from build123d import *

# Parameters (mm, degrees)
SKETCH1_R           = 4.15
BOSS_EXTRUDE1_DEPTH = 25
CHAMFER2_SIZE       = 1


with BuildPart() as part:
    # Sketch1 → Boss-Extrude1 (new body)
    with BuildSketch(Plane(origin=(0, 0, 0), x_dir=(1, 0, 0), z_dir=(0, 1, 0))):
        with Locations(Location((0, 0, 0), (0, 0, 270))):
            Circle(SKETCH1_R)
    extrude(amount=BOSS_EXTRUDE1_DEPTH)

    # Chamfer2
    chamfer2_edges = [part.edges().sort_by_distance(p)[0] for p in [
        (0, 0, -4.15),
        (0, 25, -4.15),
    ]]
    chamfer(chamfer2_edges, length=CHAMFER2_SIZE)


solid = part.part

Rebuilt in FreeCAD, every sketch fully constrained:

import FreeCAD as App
import Part
import Sketcher

V = App.Vector
Q = App.Units.Quantity


def edges_at(feature, points):
    """Names of the edges that pass closest to the given points."""
    edges = feature.Shape.Edges
    near = lambda p: min(range(len(edges)), key=lambda i: edges[i].distToShape(Part.Vertex(*p))[0])
    return sorted({f"Edge{near(p) + 1}" for p in points})

doc = App.newDocument("Part")
body = doc.addObject("PartDesign::Body", "Body")

sketch1 = body.newObject("Sketcher::SketchObject", "Sketch")
sketch1.AttachmentSupport = (doc.getObject("XZ_Plane"), [""])
sketch1.MapMode = "FlatFace"
sketch1.addGeometry(Part.Circle(V(0, 0, 0), V(0, 0, 1), 4.2), False)
sketch1.addConstraint([
    Sketcher.Constraint("Coincident", 0, 3, -1, 1),
    Sketcher.Constraint("Diameter", 0, Q("8.3 mm")),
])
pad1 = body.newObject("PartDesign::Pad", "Pad")
pad1.Profile = sketch1
pad1.Length = 25
pad1.Reversed = True
doc.recompute()

chamfer = body.newObject("PartDesign::Chamfer", "Chamfer")
chamfer.Base = (pad1, edges_at(pad1, [(0, 0, -4.15), (0, 25, -4.15)]))
chamfer.Size = 1

doc.recompute()
